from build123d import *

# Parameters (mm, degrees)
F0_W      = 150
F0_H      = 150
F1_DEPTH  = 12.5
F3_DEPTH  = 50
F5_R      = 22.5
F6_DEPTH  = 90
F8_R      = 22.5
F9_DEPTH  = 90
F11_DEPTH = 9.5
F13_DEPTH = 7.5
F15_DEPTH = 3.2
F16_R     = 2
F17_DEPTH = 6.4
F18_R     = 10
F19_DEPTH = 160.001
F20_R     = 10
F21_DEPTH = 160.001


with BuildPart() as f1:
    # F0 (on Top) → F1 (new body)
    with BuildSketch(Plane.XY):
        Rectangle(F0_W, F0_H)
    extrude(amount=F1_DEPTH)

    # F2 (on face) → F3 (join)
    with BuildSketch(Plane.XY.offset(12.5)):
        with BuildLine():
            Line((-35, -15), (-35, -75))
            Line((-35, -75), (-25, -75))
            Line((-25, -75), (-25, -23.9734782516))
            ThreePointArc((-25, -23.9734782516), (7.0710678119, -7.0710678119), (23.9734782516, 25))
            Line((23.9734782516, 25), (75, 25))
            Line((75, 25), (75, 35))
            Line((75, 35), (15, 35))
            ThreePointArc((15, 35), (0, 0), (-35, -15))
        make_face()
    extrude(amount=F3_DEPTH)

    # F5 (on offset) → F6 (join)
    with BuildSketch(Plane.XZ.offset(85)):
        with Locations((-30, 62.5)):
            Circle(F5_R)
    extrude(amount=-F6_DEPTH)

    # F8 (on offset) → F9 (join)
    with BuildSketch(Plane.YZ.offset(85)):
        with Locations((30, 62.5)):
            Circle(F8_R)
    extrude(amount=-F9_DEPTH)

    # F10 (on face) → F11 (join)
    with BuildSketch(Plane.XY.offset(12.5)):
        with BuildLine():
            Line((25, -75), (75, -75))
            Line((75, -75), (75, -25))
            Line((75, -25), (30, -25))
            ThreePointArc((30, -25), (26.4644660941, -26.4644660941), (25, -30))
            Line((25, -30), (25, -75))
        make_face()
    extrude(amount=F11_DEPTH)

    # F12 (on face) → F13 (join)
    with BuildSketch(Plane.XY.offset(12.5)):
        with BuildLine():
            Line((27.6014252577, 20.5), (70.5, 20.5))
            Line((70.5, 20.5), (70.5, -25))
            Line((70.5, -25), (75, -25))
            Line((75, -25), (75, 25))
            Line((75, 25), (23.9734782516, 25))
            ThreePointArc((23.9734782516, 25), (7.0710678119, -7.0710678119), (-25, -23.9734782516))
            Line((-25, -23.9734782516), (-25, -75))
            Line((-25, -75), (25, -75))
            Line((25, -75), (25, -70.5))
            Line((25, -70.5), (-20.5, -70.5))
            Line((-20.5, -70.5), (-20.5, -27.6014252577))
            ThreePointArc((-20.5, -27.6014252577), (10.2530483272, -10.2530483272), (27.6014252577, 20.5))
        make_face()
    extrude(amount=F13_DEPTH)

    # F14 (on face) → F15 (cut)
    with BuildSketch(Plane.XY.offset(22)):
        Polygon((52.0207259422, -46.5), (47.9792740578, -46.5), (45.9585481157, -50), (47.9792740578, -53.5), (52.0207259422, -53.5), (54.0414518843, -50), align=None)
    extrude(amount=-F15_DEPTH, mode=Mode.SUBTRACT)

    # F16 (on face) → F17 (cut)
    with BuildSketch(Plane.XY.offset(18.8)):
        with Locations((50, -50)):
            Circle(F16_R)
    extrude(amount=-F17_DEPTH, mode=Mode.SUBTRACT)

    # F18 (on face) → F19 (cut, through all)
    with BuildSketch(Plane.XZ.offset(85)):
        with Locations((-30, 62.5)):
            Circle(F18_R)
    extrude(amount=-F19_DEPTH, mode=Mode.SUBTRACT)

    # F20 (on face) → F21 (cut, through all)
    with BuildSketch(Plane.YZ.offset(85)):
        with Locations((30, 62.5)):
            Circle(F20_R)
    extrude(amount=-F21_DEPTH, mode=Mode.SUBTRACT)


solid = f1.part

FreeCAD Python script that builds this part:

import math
import FreeCAD as App
import Part
import Sketcher

V = App.Vector
Q = App.Units.Quantity

doc = App.newDocument("Part")
body = doc.addObject("PartDesign::Body", "Body")

# Sketch on XY plane
sketch1 = body.newObject("Sketcher::SketchObject", "Sketch")
sketch1.AttachmentSupport = (doc.getObject("XY_Plane"), [""])
sketch1.MapMode = "FlatFace"
sketch1.addGeometry([
    Part.LineSegment(V(-75, 75, 0), V(-75, -75, 0)),
    Part.LineSegment(V(-75, -75, 0), V(75, -75, 0)),
    Part.LineSegment(V(75, -75, 0), V(75, 75, 0)),
    Part.LineSegment(V(75, 75, 0), V(-75, 75, 0)),
], False)
sketch1.addConstraint([
    Sketcher.Constraint("Coincident", 0, 2, 1, 1),
    Sketcher.Constraint("Coincident", 1, 2, 2, 1),
    Sketcher.Constraint("Coincident", 2, 2, 3, 1),
    Sketcher.Constraint("Coincident", 3, 2, 0, 1),
    Sketcher.Constraint("Vertical", 0),
    Sketcher.Constraint("Horizontal", 1),
    Sketcher.Constraint("Vertical", 2),
    Sketcher.Constraint("Horizontal", 3),
    Sketcher.Constraint("Symmetric", 0, 2, 2, 2, -1, 1),
    Sketcher.Constraint("Equal", 3, 0),
    Sketcher.Constraint("DistanceX", 1, 1, 1, 2, Q("150 mm")),
])
pad1 = body.newObject("PartDesign::Pad", "Pad")
pad1.Profile = sketch1
pad1.Length = 12.5

# Sketch on XY plane
sketch2 = body.newObject("Sketcher::SketchObject", "Sketch001")
sketch2.AttachmentSupport = (doc.getObject("XY_Plane"), [""])
sketch2.MapMode = "FlatFace"
sketch2.AttachmentOffset = App.Placement(V(0, 0, 12.5), App.Rotation())
sketch2.addGeometry([
    Part.LineSegment(V(-35, -15, 0), V(-35, -75, 0)),  # 0
    Part.LineSegment(V(-35, -75, 0), V(-25, -75, 0)),  # 1
    Part.LineSegment(V(-25, -75, 0), V(-25, -24, 0)),  # 2
    Part.ArcOfCircle(Part.Circle(V(-36, 36, 0), V(0, 0, 1), 61), math.radians(-79), math.radians(-11)),  # 3
    Part.LineSegment(V(24, 25, 0), V(75, 25, 0)),  # 4
    Part.LineSegment(V(75, 25, 0), V(75, 35, 0)),  # 5
    Part.LineSegment(V(75, 35, 0), V(15, 35, 0)),  # 6
    Part.ArcOfCircle(Part.Circle(V(-36, 36, 0), V(0, 0, 1), 51), math.radians(-89), math.radians(-1)),  # 7
], False)
sketch2.addConstraint([
    Sketcher.Constraint("Coincident", 0, 2, 1, 1),
    Sketcher.Constraint("Coincident", 1, 2, 2, 1),
    Sketcher.Constraint("Coincident", 2, 2, 3, 1),
    Sketcher.Constraint("Coincident", 3, 2, 4, 1),
    Sketcher.Constraint("Coincident", 4, 2, 5, 1),
    Sketcher.Constraint("Coincident", 5, 2, 6, 1),
    Sketcher.Constraint("Coincident", 6, 2, 7, 2),
    Sketcher.Constraint("Coincident", 7, 1, 0, 1),
    Sketcher.Constraint("Vertical", 0),
    Sketcher.Constraint("Horizontal", 1),
    Sketcher.Constraint("Vertical", 2),
    Sketcher.Constraint("Horizontal", 4),
    Sketcher.Constraint("Vertical", 5),
    Sketcher.Constraint("Horizontal", 6),
    Sketcher.Constraint("Coincident", 7, 3, 3, 3),
    Sketcher.Constraint("Equal", 6, 0),
    Sketcher.Constraint("Equal", 4, 2),
    Sketcher.Constraint("Equal", 1, 5),
    Sketcher.Constraint("DistanceX", 1, 1, 1, 2, Q("10 mm")),
    Sketcher.Constraint("DistanceX", 6, 2, 6, 1, Q("60 mm")),
    Sketcher.Constraint("DistanceX", 0, 2, -1, 1, Q("35 mm")),
    Sketcher.Constraint("DistanceY", 0, 2, -1, 1, Q("75 mm")),
    Sketcher.Constraint("DistanceY", -1, 1, 3, 2, Q("25 mm")),
    Sketcher.Constraint("DistanceX", 3, 3, -1, 1, Q("36.25 mm")),
    Sketcher.Constraint("Radius", 3, Q("61.265242 mm")),
])
pad2 = body.newObject("PartDesign::Pad", "Pad001")
pad2.Profile = sketch2
pad2.Length = 50

# Sketch on XZ plane
sketch3 = body.newObject("Sketcher::SketchObject", "Sketch002")
sketch3.AttachmentSupport = (doc.getObject("XZ_Plane"), [""])
sketch3.MapMode = "FlatFace"
sketch3.AttachmentOffset = App.Placement(V(0, 0, 85), App.Rotation())
sketch3.addGeometry(Part.Circle(V(-30, 62, 0), V(0, 0, 1), 22), False)
sketch3.addConstraint([
    Sketcher.Constraint("Diameter", 0, Q("45 mm")),
    Sketcher.Constraint("DistanceX", 0, 3, -1, 1, Q("30 mm")),
    Sketcher.Constraint("DistanceY", -1, 1, 0, 3, Q("62.5 mm")),
])
pad3 = body.newObject("PartDesign::Pad", "Pad002")
pad3.Profile = sketch3
pad3.Length = 90
pad3.Reversed = True

# Sketch on YZ plane
sketch4 = body.newObject("Sketcher::SketchObject", "Sketch003")
sketch4.AttachmentSupport = (doc.getObject("YZ_Plane"), [""])
sketch4.MapMode = "FlatFace"
sketch4.AttachmentOffset = App.Placement(V(0, 0, 85), App.Rotation())
sketch4.addGeometry(Part.Circle(V(30, 62, 0), V(0, 0, 1), 22), False)
sketch4.addConstraint([
    Sketcher.Constraint("Diameter", 0, Q("45 mm")),
    Sketcher.Constraint("DistanceX", -1, 1, 0, 3, Q("30 mm")),
    Sketcher.Constraint("DistanceY", -1, 1, 0, 3, Q("62.5 mm")),
])
pad4 = body.newObject("PartDesign::Pad", "Pad003")
pad4.Profile = sketch4
pad4.Length = 90
pad4.Reversed = True

# Sketch on XY plane
sketch5 = body.newObject("Sketcher::SketchObject", "Sketch004")
sketch5.AttachmentSupport = (doc.getObject("XY_Plane"), [""])
sketch5.MapMode = "FlatFace"
sketch5.AttachmentOffset = App.Placement(V(0, 0, 12.5), App.Rotation())
sketch5.addGeometry([
    Part.LineSegment(V(25, -75, 0), V(75, -75, 0)),  # 0
    Part.LineSegment(V(75, -75, 0), V(75, -25, 0)),  # 1
    Part.LineSegment(V(75, -25, 0), V(30, -25, 0)),  # 2
    Part.ArcOfCircle(Part.Circle(V(30, -30, 0), V(0, 0, 1), 5), math.radians(90), math.radians(180)),  # 3
    Part.LineSegment(V(25, -30, 0), V(25, -75, 0)),  # 4
], False)
sketch5.addConstraint([
    Sketcher.Constraint("Coincident", 0, 2, 1, 1),
    Sketcher.Constraint("Coincident", 1, 2, 2, 1),
    Sketcher.Constraint("Tangent", 2, 2, 3, 1),
    Sketcher.Constraint("Tangent", 3, 2, 4, 1),
    Sketcher.Constraint("Coincident", 4, 2, 0, 1),
    Sketcher.Constraint("Horizontal", 0),
    Sketcher.Constraint("Vertical", 1),
    Sketcher.Constraint("Horizontal", 2),
    Sketcher.Constraint("Vertical", 4),
    Sketcher.Constraint("Equal", 0, 1),
    Sketcher.Constraint("Radius", 3, Q("5 mm")),
    Sketcher.Constraint("DistanceX", 0, 1, 0, 2, Q("50 mm")),
    Sketcher.Constraint("DistanceX", -1, 1, 3, 3, Q("30 mm")),
    Sketcher.Constraint("DistanceY", 3, 3, -1, 1, Q("30 mm")),
])
pad5 = body.newObject("PartDesign::Pad", "Pad004")
pad5.Profile = sketch5
pad5.Length = 9.5

# Sketch on XY plane
sketch6 = body.newObject("Sketcher::SketchObject", "Sketch005")
sketch6.AttachmentSupport = (doc.getObject("XY_Plane"), [""])
sketch6.MapMode = "FlatFace"
sketch6.AttachmentOffset = App.Placement(V(0, 0, 12.5), App.Rotation())
sketch6.addGeometry([
    Part.LineSegment(V(27.6, 20.5, 0), V(70.5, 20.5, 0)),  # 0
    Part.LineSegment(V(70.5, 20.5, 0), V(70.5, -25, 0)),  # 1
    Part.LineSegment(V(70.5, -25, 0), V(75, -25, 0)),  # 2
    Part.LineSegment(V(75, -25, 0), V(75, 25, 0)),  # 3
    Part.LineSegment(V(75, 25, 0), V(24, 25, 0)),  # 4
    Part.ArcOfCircle(Part.Circle(V(-36.2, 36.2, 0), V(0, 0, 1), 61.3), math.radians(-79), math.radians(-11)),  # 5
    Part.LineSegment(V(-25, -24, 0), V(-25, -75, 0)),  # 6
    Part.LineSegment(V(-25, -75, 0), V(25, -75, 0)),  # 7
    Part.LineSegment(V(25, -75, 0), V(25, -70.5, 0)),  # 8
    Part.LineSegment(V(25, -70.5, 0), V(-20.5, -70.5, 0)),  # 9
    Part.LineSegment(V(-20.5, -70.5, 0), V(-20.5, -27.6, 0)),  # 10
    Part.ArcOfCircle(Part.Circle(V(-36.2, 36.2, 0), V(0, 0, 1), 65.8), math.radians(-76), math.radians(-14)),  # 11
], False)
sketch6.addConstraint([
    Sketcher.Constraint("Coincident", 0, 2, 1, 1),
    Sketcher.Constraint("Coincident", 1, 2, 2, 1),
    Sketcher.Constraint("Coincident", 2, 2, 3, 1),
    Sketcher.Constraint("Coincident", 3, 2, 4, 1),
    Sketcher.Constraint("Coincident", 4, 2, 5, 2),
    Sketcher.Constraint("Coincident", 5, 1, 6, 1),
    Sketcher.Constraint("Coincident", 6, 2, 7, 1),
    Sketcher.Constraint("Coincident", 7, 2, 8, 1),
    Sketcher.Constraint("Coincident", 8, 2, 9, 1),
    Sketcher.Constraint("Coincident", 9, 2, 10, 1),
    Sketcher.Constraint("Coincident", 10, 2, 11, 1),
    Sketcher.Constraint("Coincident", 11, 2, 0, 1),
    Sketcher.Constraint("Horizontal", 0),
    Sketcher.Constraint("Vertical", 1),
    Sketcher.Constraint("Horizontal", 2),
    Sketcher.Constraint("Vertical", 3),
    Sketcher.Constraint("Horizontal", 4),
    Sketcher.Constraint("Vertical", 6),
    Sketcher.Constraint("Horizontal", 7),
    Sketcher.Constraint("Vertical", 8),
    Sketcher.Constraint("Horizontal", 9),
    Sketcher.Constraint("Vertical", 10),
    Sketcher.Constraint("Coincident", 11, 3, 5, 3),
    Sketcher.Constraint("Equal", 9, 1),
    Sketcher.Constraint("Equal", 7, 3),
    Sketcher.Constraint("Equal", 4, 6),
    Sketcher.Constraint("Equal", 2, 8),
    Sketcher.Constraint("Equal", 0, 10),
    Sketcher.Constraint("DistanceX", 7, 1, 7, 2, Q("50 mm")),
    Sketcher.Constraint("DistanceX", 2, 1, 2, 2, Q("4.5 mm")),
    Sketcher.Constraint("DistanceX", 9, 2, 9, 1, Q("45.5 mm")),
    Sketcher.Constraint("DistanceY", 1, 2, -1, 1, Q("25 mm")),
    Sketcher.Constraint("DistanceX", -1, 1, 2, 2, Q("75 mm")),
    Sketcher.Constraint("DistanceX", 5, 1, -1, 1, Q("25 mm")),
    Sketcher.Constraint("DistanceX", 5, 3, -1, 1, Q("36.25 mm")),
    Sketcher.Constraint("Radius", 5, Q("61.265242 mm")),
    Sketcher.Constraint("Radius", 11, Q("65.765242 mm")),
])
pad6 = body.newObject("PartDesign::Pad", "Pad005")
pad6.Profile = sketch6
pad6.Length = 7.5

# Sketch on XY plane
sketch7 = body.newObject("Sketcher::SketchObject", "Sketch006")
sketch7.AttachmentSupport = (doc.getObject("XY_Plane"), [""])
sketch7.MapMode = "FlatFace"
sketch7.AttachmentOffset = App.Placement(V(0, 0, 22), App.Rotation())
sketch7.addGeometry([
    Part.LineSegment(V(52, -46.5, 0), V(48, -46.5, 0)),  # 0
    Part.LineSegment(V(48, -46.5, 0), V(46, -50, 0)),  # 1
    Part.LineSegment(V(46, -50, 0), V(48, -53.5, 0)),  # 2
    Part.LineSegment(V(48, -53.5, 0), V(52, -53.5, 0)),  # 3
    Part.LineSegment(V(52, -53.5, 0), V(54, -50, 0)),  # 4
    Part.LineSegment(V(54, -50, 0), V(52, -46.5, 0)),  # 5
], False)
sketch7.addConstraint([
    Sketcher.Constraint("Coincident", 0, 2, 1, 1),
    Sketcher.Constraint("Coincident", 1, 2, 2, 1),
    Sketcher.Constraint("Coincident", 2, 2, 3, 1),
    Sketcher.Constraint("Coincident", 3, 2, 4, 1),
    Sketcher.Constraint("Coincident", 4, 2, 5, 1),
    Sketcher.Constraint("Coincident", 5, 2, 0, 1),
    Sketcher.Constraint("Horizontal", 0),
    Sketcher.Constraint("Horizontal", 3),
    Sketcher.Constraint("Parallel", 1, 4),
    Sketcher.Constraint("Parallel", 2, 5),
    Sketcher.Constraint("Horizontal", 1, 2, 4, 2),
    Sketcher.Constraint("Vertical", 0, 2, 2, 2),
    Sketcher.Constraint("Vertical", 3, 2, 5, 2),
    Sketcher.Constraint("Angle", 1, Q("-120 deg")),
    Sketcher.Constraint("DistanceY", 1, 2, -1, 1, Q("50 mm")),
    Sketcher.Constraint("DistanceY", 2, 2, 0, 2, Q("7 mm")),
    Sketcher.Constraint("DistanceX", 0, 2, 0, 1, Q("4.041452 mm")),
    Sketcher.Constraint("DistanceX", -1, 1, 1, 2, Q("45.958548 mm")),
])
pocket1 = body.newObject("PartDesign::Pocket", "Pocket")
pocket1.Profile = sketch7
pocket1.Length = 3.2

# Sketch on XY plane
sketch8 = body.newObject("Sketcher::SketchObject", "Sketch007")
sketch8.AttachmentSupport = (doc.getObject("XY_Plane"), [""])
sketch8.MapMode = "FlatFace"
sketch8.AttachmentOffset = App.Placement(V(0, 0, 18.8), App.Rotation())
sketch8.addGeometry(Part.Circle(V(50, -50, 0), V(0, 0, 1), 2), False)
sketch8.addConstraint([
    Sketcher.Constraint("Diameter", 0, Q("4 mm")),
    Sketcher.Constraint("DistanceX", -1, 1, 0, 3, Q("50 mm")),
    Sketcher.Constraint("DistanceY", 0, 3, -1, 1, Q("50 mm")),
])
pocket2 = body.newObject("PartDesign::Pocket", "Pocket001")
pocket2.Profile = sketch8
pocket2.Length = 6.4

# Sketch on XZ plane
sketch9 = body.newObject("Sketcher::SketchObject", "Sketch008")
sketch9.AttachmentSupport = (doc.getObject("XZ_Plane"), [""])
sketch9.MapMode = "FlatFace"
sketch9.AttachmentOffset = App.Placement(V(0, 0, 85), App.Rotation())
sketch9.addGeometry(Part.Circle(V(-30, 62, 0), V(0, 0, 1), 10), False)
sketch9.addConstraint([
    Sketcher.Constraint("Diameter", 0, Q("20 mm")),
    Sketcher.Constraint("DistanceX", 0, 3, -1, 1, Q("30 mm")),
    Sketcher.Constraint("DistanceY", -1, 1, 0, 3, Q("62.5 mm")),
])
pocket3 = body.newObject("PartDesign::Pocket", "Pocket002")
pocket3.Profile = sketch9
pocket3.Type = "ThroughAll"

# Sketch on YZ plane
sketch10 = body.newObject("Sketcher::SketchObject", "Sketch009")
sketch10.AttachmentSupport = (doc.getObject("YZ_Plane"), [""])
sketch10.MapMode = "FlatFace"
sketch10.AttachmentOffset = App.Placement(V(0, 0, 85), App.Rotation())
sketch10.addGeometry(Part.Circle(V(30, 62, 0), V(0, 0, 1), 10), False)
sketch10.addConstraint([
    Sketcher.Constraint("Diameter", 0, Q("20 mm")),
    Sketcher.Constraint("DistanceX", -1, 1, 0, 3, Q("30 mm")),
    Sketcher.Constraint("DistanceY", -1, 1, 0, 3, Q("62.5 mm")),
])
pocket4 = body.newObject("PartDesign::Pocket", "Pocket003")
pocket4.Profile = sketch10
pocket4.Type = "ThroughAll"

doc.recompute()
